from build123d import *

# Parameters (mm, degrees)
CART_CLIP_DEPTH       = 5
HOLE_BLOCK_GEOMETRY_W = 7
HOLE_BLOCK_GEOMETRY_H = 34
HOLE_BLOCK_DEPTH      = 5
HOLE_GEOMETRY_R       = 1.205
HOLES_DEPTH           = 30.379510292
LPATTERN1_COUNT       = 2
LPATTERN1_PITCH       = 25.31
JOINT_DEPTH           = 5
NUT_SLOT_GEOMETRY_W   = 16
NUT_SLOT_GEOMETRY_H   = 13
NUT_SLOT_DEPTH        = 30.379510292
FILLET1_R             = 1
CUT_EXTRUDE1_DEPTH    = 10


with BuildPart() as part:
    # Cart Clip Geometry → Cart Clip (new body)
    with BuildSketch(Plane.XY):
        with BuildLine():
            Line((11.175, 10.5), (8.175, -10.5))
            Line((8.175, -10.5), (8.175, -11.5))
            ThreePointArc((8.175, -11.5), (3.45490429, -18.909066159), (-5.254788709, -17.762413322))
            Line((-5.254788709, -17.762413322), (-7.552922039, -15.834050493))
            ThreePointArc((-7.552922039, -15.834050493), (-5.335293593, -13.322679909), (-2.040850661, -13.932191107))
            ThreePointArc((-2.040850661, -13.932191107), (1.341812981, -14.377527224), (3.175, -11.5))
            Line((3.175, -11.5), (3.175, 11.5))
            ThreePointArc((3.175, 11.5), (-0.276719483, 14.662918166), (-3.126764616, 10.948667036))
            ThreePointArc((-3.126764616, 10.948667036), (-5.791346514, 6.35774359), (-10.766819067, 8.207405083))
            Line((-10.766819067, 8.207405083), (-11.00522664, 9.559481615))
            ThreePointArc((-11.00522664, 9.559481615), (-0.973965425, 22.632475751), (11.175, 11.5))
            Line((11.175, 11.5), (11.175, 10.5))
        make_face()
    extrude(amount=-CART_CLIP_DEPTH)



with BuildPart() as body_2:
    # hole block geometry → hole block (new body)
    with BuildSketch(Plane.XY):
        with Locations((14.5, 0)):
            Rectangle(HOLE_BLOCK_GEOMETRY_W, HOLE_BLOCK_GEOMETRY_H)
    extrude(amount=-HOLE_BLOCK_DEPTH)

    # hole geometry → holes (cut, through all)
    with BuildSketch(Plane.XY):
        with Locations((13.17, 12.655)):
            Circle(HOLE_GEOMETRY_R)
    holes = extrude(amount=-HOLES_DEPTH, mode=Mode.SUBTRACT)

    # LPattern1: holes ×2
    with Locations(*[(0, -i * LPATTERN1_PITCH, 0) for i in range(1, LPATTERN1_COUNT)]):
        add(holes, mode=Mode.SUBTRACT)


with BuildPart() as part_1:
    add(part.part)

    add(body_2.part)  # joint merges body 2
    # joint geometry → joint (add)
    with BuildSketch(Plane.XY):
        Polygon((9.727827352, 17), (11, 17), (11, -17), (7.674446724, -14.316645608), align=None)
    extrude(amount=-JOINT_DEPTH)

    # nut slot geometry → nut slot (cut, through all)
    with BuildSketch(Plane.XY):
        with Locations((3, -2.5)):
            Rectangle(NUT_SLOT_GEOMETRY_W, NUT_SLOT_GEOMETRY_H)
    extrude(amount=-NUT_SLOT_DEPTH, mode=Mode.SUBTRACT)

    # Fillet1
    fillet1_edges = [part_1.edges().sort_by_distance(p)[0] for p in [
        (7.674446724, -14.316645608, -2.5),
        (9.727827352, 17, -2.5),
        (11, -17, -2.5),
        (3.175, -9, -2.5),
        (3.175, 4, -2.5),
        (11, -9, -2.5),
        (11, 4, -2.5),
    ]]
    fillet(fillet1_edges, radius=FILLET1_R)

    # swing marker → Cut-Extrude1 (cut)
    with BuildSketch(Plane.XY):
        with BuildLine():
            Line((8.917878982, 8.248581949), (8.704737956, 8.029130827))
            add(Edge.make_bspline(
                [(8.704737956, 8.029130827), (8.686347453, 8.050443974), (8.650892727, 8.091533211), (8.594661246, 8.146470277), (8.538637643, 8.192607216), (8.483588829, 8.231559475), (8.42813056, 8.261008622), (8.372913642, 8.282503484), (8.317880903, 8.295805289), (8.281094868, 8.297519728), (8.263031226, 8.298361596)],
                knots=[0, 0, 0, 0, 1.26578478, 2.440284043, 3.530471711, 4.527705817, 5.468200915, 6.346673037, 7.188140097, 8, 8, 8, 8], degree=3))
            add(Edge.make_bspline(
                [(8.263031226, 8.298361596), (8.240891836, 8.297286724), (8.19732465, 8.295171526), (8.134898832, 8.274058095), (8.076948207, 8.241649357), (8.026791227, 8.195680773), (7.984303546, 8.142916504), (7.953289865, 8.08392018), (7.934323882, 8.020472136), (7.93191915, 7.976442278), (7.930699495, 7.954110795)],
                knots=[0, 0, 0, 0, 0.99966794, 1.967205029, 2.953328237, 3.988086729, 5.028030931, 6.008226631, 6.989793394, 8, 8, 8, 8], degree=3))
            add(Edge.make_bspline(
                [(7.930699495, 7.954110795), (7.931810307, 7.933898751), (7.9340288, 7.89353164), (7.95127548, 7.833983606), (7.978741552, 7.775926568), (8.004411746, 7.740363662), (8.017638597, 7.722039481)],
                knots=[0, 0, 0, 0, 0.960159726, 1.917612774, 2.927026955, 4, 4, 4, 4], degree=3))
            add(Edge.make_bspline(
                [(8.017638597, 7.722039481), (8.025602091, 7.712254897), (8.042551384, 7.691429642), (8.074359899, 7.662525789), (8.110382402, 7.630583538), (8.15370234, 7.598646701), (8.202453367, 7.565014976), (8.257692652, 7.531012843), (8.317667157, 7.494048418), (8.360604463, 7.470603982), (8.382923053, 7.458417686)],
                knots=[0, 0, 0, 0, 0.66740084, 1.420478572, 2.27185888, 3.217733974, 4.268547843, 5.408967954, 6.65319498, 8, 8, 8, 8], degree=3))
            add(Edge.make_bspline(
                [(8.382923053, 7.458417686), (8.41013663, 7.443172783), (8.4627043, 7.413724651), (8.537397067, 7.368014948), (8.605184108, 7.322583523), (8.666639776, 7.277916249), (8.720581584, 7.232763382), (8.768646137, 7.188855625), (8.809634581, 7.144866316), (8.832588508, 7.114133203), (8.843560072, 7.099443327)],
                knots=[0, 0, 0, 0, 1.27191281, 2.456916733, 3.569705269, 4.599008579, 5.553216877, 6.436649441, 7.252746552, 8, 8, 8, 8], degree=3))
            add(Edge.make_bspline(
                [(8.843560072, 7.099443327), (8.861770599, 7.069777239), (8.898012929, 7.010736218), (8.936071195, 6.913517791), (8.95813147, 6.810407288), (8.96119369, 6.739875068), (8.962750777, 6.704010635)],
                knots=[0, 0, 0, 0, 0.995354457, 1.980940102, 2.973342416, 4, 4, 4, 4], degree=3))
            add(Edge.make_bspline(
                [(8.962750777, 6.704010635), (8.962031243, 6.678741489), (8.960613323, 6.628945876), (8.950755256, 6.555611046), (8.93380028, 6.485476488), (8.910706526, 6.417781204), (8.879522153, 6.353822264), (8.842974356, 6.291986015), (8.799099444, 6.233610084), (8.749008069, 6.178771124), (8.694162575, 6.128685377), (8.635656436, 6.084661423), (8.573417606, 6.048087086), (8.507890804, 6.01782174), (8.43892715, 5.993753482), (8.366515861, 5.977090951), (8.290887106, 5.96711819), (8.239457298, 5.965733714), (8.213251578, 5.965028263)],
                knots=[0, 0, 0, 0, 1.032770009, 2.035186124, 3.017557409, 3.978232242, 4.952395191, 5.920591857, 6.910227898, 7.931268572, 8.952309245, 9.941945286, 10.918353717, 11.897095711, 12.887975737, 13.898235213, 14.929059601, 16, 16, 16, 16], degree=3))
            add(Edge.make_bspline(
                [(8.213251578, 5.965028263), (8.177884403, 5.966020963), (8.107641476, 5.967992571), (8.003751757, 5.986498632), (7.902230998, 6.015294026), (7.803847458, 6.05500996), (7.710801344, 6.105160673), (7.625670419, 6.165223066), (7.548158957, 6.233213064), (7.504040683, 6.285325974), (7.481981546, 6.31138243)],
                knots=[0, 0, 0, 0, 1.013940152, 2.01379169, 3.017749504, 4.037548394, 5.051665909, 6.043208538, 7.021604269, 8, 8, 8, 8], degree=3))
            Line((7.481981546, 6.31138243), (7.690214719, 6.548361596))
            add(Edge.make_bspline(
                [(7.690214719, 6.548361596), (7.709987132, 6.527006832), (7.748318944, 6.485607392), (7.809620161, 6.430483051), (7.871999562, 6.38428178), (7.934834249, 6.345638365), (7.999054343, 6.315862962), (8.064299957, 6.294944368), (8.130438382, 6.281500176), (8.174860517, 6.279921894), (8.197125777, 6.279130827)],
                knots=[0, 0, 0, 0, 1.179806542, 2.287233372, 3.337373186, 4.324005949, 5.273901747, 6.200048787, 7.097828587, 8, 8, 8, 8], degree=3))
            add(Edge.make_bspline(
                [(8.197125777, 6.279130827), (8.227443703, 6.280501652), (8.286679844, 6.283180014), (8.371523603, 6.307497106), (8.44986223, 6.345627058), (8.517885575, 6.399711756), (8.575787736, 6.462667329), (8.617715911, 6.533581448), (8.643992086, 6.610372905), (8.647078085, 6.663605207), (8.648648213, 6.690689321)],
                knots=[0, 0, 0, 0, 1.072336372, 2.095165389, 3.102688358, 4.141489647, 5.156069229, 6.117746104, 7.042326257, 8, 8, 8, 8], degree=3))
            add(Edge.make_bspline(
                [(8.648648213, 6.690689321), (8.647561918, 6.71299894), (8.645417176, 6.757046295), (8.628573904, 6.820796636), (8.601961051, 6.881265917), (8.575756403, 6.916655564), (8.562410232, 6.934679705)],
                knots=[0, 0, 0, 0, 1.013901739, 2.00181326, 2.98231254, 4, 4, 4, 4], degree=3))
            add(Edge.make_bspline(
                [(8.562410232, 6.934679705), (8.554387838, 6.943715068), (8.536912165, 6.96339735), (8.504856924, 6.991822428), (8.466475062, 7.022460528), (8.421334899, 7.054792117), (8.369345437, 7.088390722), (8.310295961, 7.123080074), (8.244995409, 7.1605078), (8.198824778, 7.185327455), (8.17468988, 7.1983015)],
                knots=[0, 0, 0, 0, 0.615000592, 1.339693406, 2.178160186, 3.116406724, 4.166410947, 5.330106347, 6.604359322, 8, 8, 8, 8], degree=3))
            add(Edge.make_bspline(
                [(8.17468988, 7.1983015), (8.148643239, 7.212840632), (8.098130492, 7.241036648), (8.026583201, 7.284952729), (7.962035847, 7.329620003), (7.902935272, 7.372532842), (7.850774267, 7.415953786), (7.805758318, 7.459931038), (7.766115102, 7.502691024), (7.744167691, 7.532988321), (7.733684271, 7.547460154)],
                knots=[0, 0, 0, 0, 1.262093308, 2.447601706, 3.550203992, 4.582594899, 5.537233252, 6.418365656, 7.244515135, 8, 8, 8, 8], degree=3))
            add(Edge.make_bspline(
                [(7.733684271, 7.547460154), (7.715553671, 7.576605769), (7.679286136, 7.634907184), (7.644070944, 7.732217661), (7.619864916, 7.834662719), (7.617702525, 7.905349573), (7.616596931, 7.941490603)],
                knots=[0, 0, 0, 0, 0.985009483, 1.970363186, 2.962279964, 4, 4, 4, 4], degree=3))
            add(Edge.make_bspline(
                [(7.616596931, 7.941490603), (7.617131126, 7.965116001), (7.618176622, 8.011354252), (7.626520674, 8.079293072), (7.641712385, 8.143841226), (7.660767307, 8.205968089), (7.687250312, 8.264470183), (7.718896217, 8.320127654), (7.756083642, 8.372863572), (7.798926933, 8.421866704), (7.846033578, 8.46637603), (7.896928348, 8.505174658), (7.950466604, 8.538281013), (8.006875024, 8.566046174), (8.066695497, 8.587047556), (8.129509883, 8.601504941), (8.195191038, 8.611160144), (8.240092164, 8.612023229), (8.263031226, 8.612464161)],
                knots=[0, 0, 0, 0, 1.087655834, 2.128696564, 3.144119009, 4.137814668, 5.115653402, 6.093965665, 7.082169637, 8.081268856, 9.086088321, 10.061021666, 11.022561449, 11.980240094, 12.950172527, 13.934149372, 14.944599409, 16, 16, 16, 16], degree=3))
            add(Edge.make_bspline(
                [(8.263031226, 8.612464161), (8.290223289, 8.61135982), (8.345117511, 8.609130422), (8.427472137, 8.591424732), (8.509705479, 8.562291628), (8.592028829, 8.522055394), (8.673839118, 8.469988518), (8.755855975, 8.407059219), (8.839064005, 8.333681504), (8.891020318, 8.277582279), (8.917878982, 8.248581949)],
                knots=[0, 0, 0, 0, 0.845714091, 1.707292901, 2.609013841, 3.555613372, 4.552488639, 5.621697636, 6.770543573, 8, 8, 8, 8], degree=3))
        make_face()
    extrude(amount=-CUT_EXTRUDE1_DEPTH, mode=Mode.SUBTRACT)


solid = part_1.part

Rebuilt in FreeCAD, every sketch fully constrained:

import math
import FreeCAD as App
import Part
import Sketcher

V = App.Vector
Q = App.Units.Quantity


def edges_at(feature, points):
    """Names of the edges that pass closest to the given points."""
    edges = feature.Shape.Edges
    near = lambda p: min(range(len(edges)), key=lambda i: edges[i].distToShape(Part.Vertex(*p))[0])
    return sorted({f"Edge{near(p) + 1}" for p in points})


def add_polygon(sketch, points):
    """Adds a closed chain of lines whose ends are joined by coincident constraints."""
    first, n = sketch.GeometryCount, len(points)
    for a, b in zip(points, points[1:] + points[:1]):
        sketch.addGeometry(Part.LineSegment(App.Vector(*a, 0), App.Vector(*b, 0)), False)
    for i in range(n):
        sketch.addConstraint(Sketcher.Constraint("Coincident", first + i, 2, first + (i + 1) % n, 1))

doc = App.newDocument("Part")
body = doc.addObject("PartDesign::Body", "Body")

# Sketch on XY plane
sketch1 = body.newObject("Sketcher::SketchObject", "Sketch")
sketch1.AttachmentSupport = (doc.getObject("XY_Plane"), [""])
sketch1.MapMode = "FlatFace"
sketch1.addGeometry(Part.LineSegment(V(8.2, -10.5, 0), V(11.2, 10.5, 0)), False)
sketch1.addGeometry(Part.LineSegment(V(11.2, 10.5, 0), V(11.2, 11.5, 0)), False)
sketch1.addGeometry(Part.ArcOfCircle(Part.Circle(V(0, 11.5, 0), V(0, 0, 1), 11.2), math.radians(0), math.radians(190)), False)
sketch1.addGeometry(Part.LineSegment(V(-11, 9.6, 0), V(-10.8, 8.2, 0)), False)
sketch1.addGeometry(Part.ArcOfCircle(Part.Circle(V(-7.2, 10.2, 0), V(0, 0, 1), 4.1), math.radians(-151), math.radians(10)), False)
sketch1.addGeometry(Part.ArcOfCircle(Part.Circle(V(0, 11.5, 0), V(0, 0, 1), 3.2), math.radians(0), math.radians(190)), False)
sketch1.addGeometry(Part.LineSegment(V(3.2, 11.5, 0), V(3.2, -11.5, 0)), False)
sketch1.addGeometry(Part.ArcOfCircle(Part.Circle(V(0, -11.5, 0), V(0, 0, 1), 3.2), math.radians(-130), math.radians(0)), False)
sketch1.addGeometry(Part.ArcOfCircle(Part.Circle(V(-4.2, -16.5, 0), V(0, 0, 1), 3.4), math.radians(50), math.radians(168)), False)
sketch1.addGeometry(Part.LineSegment(V(-7.6, -15.8, 0), V(-5.3, -17.8, 0)), False)
sketch1.addGeometry(Part.ArcOfCircle(Part.Circle(V(0, -11.5, 0), V(0, 0, 1), 8.2), math.radians(-130), math.radians(0)), False)
sketch1.addGeometry(Part.LineSegment(V(8.2, -11.5, 0), V(8.2, -10.5, 0)), False)
sketch1.addConstraint(Sketcher.Constraint("Coincident", 0, 2, 1, 1))
sketch1.addConstraint(Sketcher.Constraint("Tangent", 1, 2, 2, 1))
sketch1.addConstraint(Sketcher.Constraint("Tangent", 2, 2, 3, 1))
sketch1.addConstraint(Sketcher.Constraint("Coincident", 3, 2, 4, 1))
sketch1.addConstraint(Sketcher.Constraint("Tangent", 4, 2, 5, 2))
sketch1.addConstraint(Sketcher.Constraint("Tangent", 5, 1, 6, 1))
sketch1.addConstraint(Sketcher.Constraint("Tangent", 6, 2, 7, 2))
sketch1.addConstraint(Sketcher.Constraint("Tangent", 7, 1, 8, 1))
sketch1.addConstraint(Sketcher.Constraint("Coincident", 8, 2, 9, 1))
sketch1.addConstraint(Sketcher.Constraint("Tangent", 9, 2, 10, 1))
sketch1.addConstraint(Sketcher.Constraint("Tangent", 10, 2, 11, 1))
sketch1.addConstraint(Sketcher.Constraint("Coincident", 11, 2, 0, 1))
sketch1.addConstraint(Sketcher.Constraint("Vertical", 1))
sketch1.addConstraint(Sketcher.Constraint("Vertical", 6))
sketch1.addConstraint(Sketcher.Constraint("Vertical", 11))
sketch1.addConstraint(Sketcher.Constraint("Coincident", 5, 3, 2, 3))
sketch1.addConstraint(Sketcher.Constraint("Coincident", 10, 3, 7, 3))
sketch1.addConstraint(Sketcher.Constraint("Equal", 5, 7))
sketch1.addConstraint(Sketcher.Constraint("Symmetric", 2, 3, 7, 3, -1, 1))
sketch1.addConstraint(Sketcher.Constraint("Equal", 1, 11))
sketch1.addConstraint(Sketcher.Constraint("Radius", 8, 3.4))
sketch1.addConstraint(Sketcher.Constraint("DistanceY", 1, 1, 1, 2, 1.0))
sketch1.addConstraint(Sketcher.Constraint("DistanceY", 6, 2, 6, 1, 23.0))
sketch1.addConstraint(Sketcher.Constraint("Angle", 3, Q("-80 deg")))
sketch1.addConstraint(Sketcher.Constraint("Angle", 9, Q("-40 deg")))
sketch1.addConstraint(Sketcher.Constraint("Distance", 9, 3.0))
sketch1.addConstraint(Sketcher.Constraint("Radius", 2, 11.175))
sketch1.addConstraint(Sketcher.Constraint("Radius", 5, 3.175))
sketch1.addConstraint(Sketcher.Constraint("Radius", 10, 8.175))
sketch1.addConstraint(Sketcher.Constraint("Radius", 4, 4.117809))
sketch1.addConstraint(Sketcher.Constraint("DistanceX", 3, 2, -1, 1, 10.766819))
pad1 = body.newObject("PartDesign::Pad", "Pad")
pad1.Profile = sketch1
pad1.Length = 5
pad1.Reversed = True
body2 = doc.addObject("PartDesign::Body", "Body001")

# Sketch on XY plane
sketch2 = body2.newObject("Sketcher::SketchObject", "Sketch001")
sketch2.AttachmentSupport = (doc.getObject("XY_Plane001"), [""])
sketch2.MapMode = "FlatFace"
add_polygon(sketch2, [(11, 17), (11, -17), (18, -17), (18, 17)])  # lines 0-3
sketch2.addConstraint(Sketcher.Constraint("Vertical", 0))
sketch2.addConstraint(Sketcher.Constraint("Horizontal", 1))
sketch2.addConstraint(Sketcher.Constraint("Vertical", 2))
sketch2.addConstraint(Sketcher.Constraint("Horizontal", 3))
sketch2.addConstraint(Sketcher.Constraint("DistanceX", 1, 1, 1, 2, 7.0))
sketch2.addConstraint(Sketcher.Constraint("DistanceY", 0, 2, 0, 1, 34.0))
sketch2.addConstraint(Sketcher.Constraint("DistanceX", -1, 1, 0, 2, 11.0))
sketch2.addConstraint(Sketcher.Constraint("DistanceY", 0, 2, -1, 1, 17.0))
pad2 = body2.newObject("PartDesign::Pad", "Pad001")
pad2.Profile = sketch2
pad2.Length = 5
pad2.Reversed = True

# Sketch on XY plane
sketch3 = body2.newObject("Sketcher::SketchObject", "Sketch002")
sketch3.AttachmentSupport = (doc.getObject("XY_Plane001"), [""])
sketch3.MapMode = "FlatFace"
sketch3.addGeometry(Part.Circle(V(13.2, 12.7, 0), V(0, 0, 1), 1.2), False)
sketch3.addConstraint(Sketcher.Constraint("Diameter", 0, 2.41))
sketch3.addConstraint(Sketcher.Constraint("DistanceX", -1, 1, 0, 3, 13.17))
sketch3.addConstraint(Sketcher.Constraint("DistanceY", -1, 1, 0, 3, 12.655))
pocket1 = body2.newObject("PartDesign::Pocket", "Pocket")
pocket1.Profile = sketch3
pocket1.Type = "ThroughAll"
doc.recompute()

linearpattern = body2.newObject("PartDesign::LinearPattern", "LinearPattern")
linearpattern.Originals = [pocket1]
linearpattern.Direction = (doc.getObject("Y_Axis001"), [""])
linearpattern.Mode = "offset"
linearpattern.Offset = 25.31
linearpattern.Occurrences = 2
linearpattern.Reversed = True
body2.Tip = linearpattern
doc.recompute()

boolean = body.newObject("PartDesign::Boolean", "Boolean")
boolean.Type = "Fuse"
boolean.addObjects([body2])

# Sketch on XY plane
sketch4 = body.newObject("Sketcher::SketchObject", "Sketch003")
sketch4.AttachmentSupport = (doc.getObject("XY_Plane"), [""])
sketch4.MapMode = "FlatFace"
add_polygon(sketch4, [(11, 17), (9.7, 17), (7.7, -14.3), (11, -17)])  # lines 0-3
sketch4.addConstraint(Sketcher.Constraint("Horizontal", 0))
sketch4.addConstraint(Sketcher.Constraint("Vertical", 3))
sketch4.addConstraint(Sketcher.Constraint("DistanceY", 3, 1, 3, 2, 34.0))
sketch4.addConstraint(Sketcher.Constraint("DistanceY", -1, 1, 0, 2, 17.0))
sketch4.addConstraint(Sketcher.Constraint("DistanceX", -1, 1, 2, 2, 11.0))
sketch4.addConstraint(Sketcher.Constraint("Distance", 1, 31.383892))
sketch4.addConstraint(Sketcher.Constraint("DistanceX", 0, 2, 0, 1, 1.272173))
sketch4.addConstraint(Sketcher.Constraint("DistanceX", 1, 2, 0, 2, 2.053381))
pad3 = body.newObject("PartDesign::Pad", "Pad002")
pad3.Profile = sketch4
pad3.Length = 5
pad3.Reversed = True

# Sketch on XY plane
sketch5 = body.newObject("Sketcher::SketchObject", "Sketch004")
sketch5.AttachmentSupport = (doc.getObject("XY_Plane"), [""])
sketch5.MapMode = "FlatFace"
add_polygon(sketch5, [(-5, 4), (-5, -9), (11, -9), (11, 4)])  # lines 0-3
sketch5.addConstraint(Sketcher.Constraint("Vertical", 0))
sketch5.addConstraint(Sketcher.Constraint("Horizontal", 1))
sketch5.addConstraint(Sketcher.Constraint("Vertical", 2))
sketch5.addConstraint(Sketcher.Constraint("Horizontal", 3))
sketch5.addConstraint(Sketcher.Constraint("DistanceX", 1, 1, 1, 2, 16.0))
sketch5.addConstraint(Sketcher.Constraint("DistanceY", 0, 2, 0, 1, 13.0))
sketch5.addConstraint(Sketcher.Constraint("DistanceX", 0, 2, -1, 1, 5.0))
sketch5.addConstraint(Sketcher.Constraint("DistanceY", 0, 2, -1, 1, 9.0))
pocket2 = body.newObject("PartDesign::Pocket", "Pocket001")
pocket2.Profile = sketch5
pocket2.Type = "ThroughAll"
doc.recompute()

fillet = body.newObject("PartDesign::Fillet", "Fillet")
fillet.Base = (pocket2, edges_at(pocket2, [
    (7.674, -14.317, -2.5),
    (9.728, 17, -2.5),
    (11, -17, -2.5),
    (3.175, -9, -2.5),
    (3.175, 4, -2.5),
    (11, -9, -2.5),
    (11, 4, -2.5),
]))
fillet.Radius = 1

# Sketch on XY plane
sketch6 = body.newObject("Sketcher::SketchObject", "Sketch005")
sketch6.AttachmentSupport = (doc.getObject("XY_Plane"), [""])
sketch6.MapMode = "FlatFace"
sketch6.addGeometry(Part.LineSegment(V(8.704738, 8.029131, 0), V(8.917879, 8.248582, 0)), False)
sketch6.addGeometry(Part.BSplineCurve([V(8.263031, 8.612464, 0), V(8.290223, 8.61136, 0), V(8.345118, 8.60913, 0), V(8.427472, 8.591425, 0), V(8.509705, 8.562292, 0), V(8.592029, 8.522055, 0), V(8.673839, 8.469989, 0), V(8.755856, 8.407059, 0), V(8.839064, 8.333682, 0), V(8.89102, 8.277582, 0), V(8.917879, 8.248582, 0)], [4, 1, 1, 1, 1, 1, 1, 1, 4], [0, 0.845714091, 1.707292901, 2.609013841, 3.555613372, 4.552488639, 5.621697636, 6.770543573, 8], False, 3, [1, 1, 1, 1, 1, 1, 1, 1, 1, 1, 1], False), False)
sketch6.addGeometry(Part.BSplineCurve([V(7.616597, 7.941491, 0), V(7.617131, 7.965116, 0), V(7.618177, 8.011354, 0), V(7.626521, 8.079293, 0), V(7.641712, 8.143841, 0), V(7.660767, 8.205968, 0), V(7.68725, 8.26447, 0), V(7.718896, 8.320128, 0), V(7.756084, 8.372864, 0), V(7.798927, 8.421867, 0), V(7.846034, 8.466376, 0), V(7.896928, 8.505175, 0), V(7.950467, 8.538281, 0), V(8.006875, 8.566046, 0), V(8.066695, 8.587048, 0), V(8.12951, 8.601505, 0), V(8.195191, 8.61116, 0), V(8.240092, 8.612023, 0), V(8.263031, 8.612464, 0)], [4, 1, 1, 1, 1, 1, 1, 1, 1, 1, 1, 1, 1, 1, 1, 1, 4], [0, 1.087655834, 2.128696564, 3.144119009, 4.137814668, 5.115653402, 6.093965665, 7.082169637, 8.081268856, 9.086088321, 10.061021666, 11.022561449, 11.980240094, 12.950172527, 13.934149372, 14.944599409, 16], False, 3, [1, 1, 1, 1, 1, 1, 1, 1, 1, 1, 1, 1, 1, 1, 1, 1, 1, 1, 1], False), False)
sketch6.addGeometry(Part.BSplineCurve([V(7.733684, 7.54746, 0), V(7.715554, 7.576606, 0), V(7.679286, 7.634907, 0), V(7.644071, 7.732218, 0), V(7.619865, 7.834663, 0), V(7.617703, 7.90535, 0), V(7.616597, 7.941491, 0)], [4, 1, 1, 1, 4], [0, 0.985009483, 1.970363186, 2.962279964, 4], False, 3, [1, 1, 1, 1, 1, 1, 1], False), False)
sketch6.addGeometry(Part.BSplineCurve([V(8.17469, 7.198302, 0), V(8.148643, 7.212841, 0), V(8.09813, 7.241037, 0), V(8.026583, 7.284953, 0), V(7.962036, 7.32962, 0), V(7.902935, 7.372533, 0), V(7.850774, 7.415954, 0), V(7.805758, 7.459931, 0), V(7.766115, 7.502691, 0), V(7.744168, 7.532988, 0), V(7.733684, 7.54746, 0)], [4, 1, 1, 1, 1, 1, 1, 1, 4], [0, 1.262093308, 2.447601706, 3.550203992, 4.582594899, 5.537233252, 6.418365656, 7.244515135, 8], False, 3, [1, 1, 1, 1, 1, 1, 1, 1, 1, 1, 1], False), False)
sketch6.addGeometry(Part.BSplineCurve([V(8.56241, 6.93468, 0), V(8.554388, 6.943715, 0), V(8.536912, 6.963397, 0), V(8.504857, 6.991822, 0), V(8.466475, 7.022461, 0), V(8.421335, 7.054792, 0), V(8.369345, 7.088391, 0), V(8.310296, 7.12308, 0), V(8.244995, 7.160508, 0), V(8.198825, 7.185327, 0), V(8.17469, 7.198302, 0)], [4, 1, 1, 1, 1, 1, 1, 1, 4], [0, 0.615000592, 1.339693406, 2.178160186, 3.116406724, 4.166410947, 5.330106347, 6.604359322, 8], False, 3, [1, 1, 1, 1, 1, 1, 1, 1, 1, 1, 1], False), False)
sketch6.addGeometry(Part.BSplineCurve([V(8.648648, 6.690689, 0), V(8.647562, 6.712999, 0), V(8.645417, 6.757046, 0), V(8.628574, 6.820797, 0), V(8.601961, 6.881266, 0), V(8.575756, 6.916656, 0), V(8.56241, 6.93468, 0)], [4, 1, 1, 1, 4], [0, 1.013901739, 2.00181326, 2.98231254, 4], False, 3, [1, 1, 1, 1, 1, 1, 1], False), False)
sketch6.addGeometry(Part.BSplineCurve([V(8.197126, 6.279131, 0), V(8.227444, 6.280502, 0), V(8.28668, 6.28318, 0), V(8.371524, 6.307497, 0), V(8.449862, 6.345627, 0), V(8.517886, 6.399712, 0), V(8.575788, 6.462667, 0), V(8.617716, 6.533581, 0), V(8.643992, 6.610373, 0), V(8.647078, 6.663605, 0), V(8.648648, 6.690689, 0)], [4, 1, 1, 1, 1, 1, 1, 1, 4], [0, 1.072336372, 2.095165389, 3.102688358, 4.141489647, 5.156069229, 6.117746104, 7.042326257, 8], False, 3, [1, 1, 1, 1, 1, 1, 1, 1, 1, 1, 1], False), False)
sketch6.addGeometry(Part.BSplineCurve([V(7.690215, 6.548362, 0), V(7.709987, 6.527007, 0), V(7.748319, 6.485607, 0), V(7.80962, 6.430483, 0), V(7.872, 6.384282, 0), V(7.934834, 6.345638, 0), V(7.999054, 6.315863, 0), V(8.0643, 6.294944, 0), V(8.130438, 6.2815, 0), V(8.174861, 6.279922, 0), V(8.197126, 6.279131, 0)], [4, 1, 1, 1, 1, 1, 1, 1, 4], [0, 1.179806542, 2.287233372, 3.337373186, 4.324005949, 5.273901747, 6.200048787, 7.097828587, 8], False, 3, [1, 1, 1, 1, 1, 1, 1, 1, 1, 1, 1], False), False)
sketch6.addGeometry(Part.LineSegment(V(7.690215, 6.548362, 0), V(7.481982, 6.311382, 0)), False)
sketch6.addGeometry(Part.BSplineCurve([V(8.213252, 5.965028, 0), V(8.177884, 5.966021, 0), V(8.107641, 5.967993, 0), V(8.003752, 5.986499, 0), V(7.902231, 6.015294, 0), V(7.803847, 6.05501, 0), V(7.710801, 6.105161, 0), V(7.62567, 6.165223, 0), V(7.548159, 6.233213, 0), V(7.504041, 6.285326, 0), V(7.481982, 6.311382, 0)], [4, 1, 1, 1, 1, 1, 1, 1, 4], [0, 1.013940152, 2.01379169, 3.017749504, 4.037548394, 5.051665909, 6.043208538, 7.021604269, 8], False, 3, [1, 1, 1, 1, 1, 1, 1, 1, 1, 1, 1], False), False)
sketch6.addGeometry(Part.BSplineCurve([V(8.962751, 6.704011, 0), V(8.962031, 6.678741, 0), V(8.960613, 6.628946, 0), V(8.950755, 6.555611, 0), V(8.9338, 6.485476, 0), V(8.910707, 6.417781, 0), V(8.879522, 6.353822, 0), V(8.842974, 6.291986, 0), V(8.799099, 6.23361, 0), V(8.749008, 6.178771, 0), V(8.694163, 6.128685, 0), V(8.635656, 6.084661, 0), V(8.573418, 6.048087, 0), V(8.507891, 6.017822, 0), V(8.438927, 5.993753, 0), V(8.366516, 5.977091, 0), V(8.290887, 5.967118, 0), V(8.239457, 5.965734, 0), V(8.213252, 5.965028, 0)], [4, 1, 1, 1, 1, 1, 1, 1, 1, 1, 1, 1, 1, 1, 1, 1, 4], [0, 1.032770009, 2.035186124, 3.017557409, 3.978232242, 4.952395191, 5.920591857, 6.910227898, 7.931268572, 8.952309245, 9.941945286, 10.918353717, 11.897095711, 12.887975737, 13.898235213, 14.929059601, 16], False, 3, [1, 1, 1, 1, 1, 1, 1, 1, 1, 1, 1, 1, 1, 1, 1, 1, 1, 1, 1], False), False)
sketch6.addGeometry(Part.BSplineCurve([V(8.84356, 7.099443, 0), V(8.861771, 7.069777, 0), V(8.898013, 7.010736, 0), V(8.936071, 6.913518, 0), V(8.958131, 6.810407, 0), V(8.961194, 6.739875, 0), V(8.962751, 6.704011, 0)], [4, 1, 1, 1, 4], [0, 0.995354457, 1.980940102, 2.973342416, 4], False, 3, [1, 1, 1, 1, 1, 1, 1], False), False)
sketch6.addGeometry(Part.BSplineCurve([V(8.382923, 7.458418, 0), V(8.410137, 7.443173, 0), V(8.462704, 7.413725, 0), V(8.537397, 7.368015, 0), V(8.605184, 7.322584, 0), V(8.66664, 7.277916, 0), V(8.720582, 7.232763, 0), V(8.768646, 7.188856, 0), V(8.809635, 7.144866, 0), V(8.832589, 7.114133, 0), V(8.84356, 7.099443, 0)], [4, 1, 1, 1, 1, 1, 1, 1, 4], [0, 1.27191281, 2.456916733, 3.569705269, 4.599008579, 5.553216877, 6.436649441, 7.252746552, 8], False, 3, [1, 1, 1, 1, 1, 1, 1, 1, 1, 1, 1], False), False)
sketch6.addGeometry(Part.BSplineCurve([V(8.017639, 7.722039, 0), V(8.025602, 7.712255, 0), V(8.042551, 7.69143, 0), V(8.07436, 7.662526, 0), V(8.110382, 7.630584, 0), V(8.153702, 7.598647, 0), V(8.202453, 7.565015, 0), V(8.257693, 7.531013, 0), V(8.317667, 7.494048, 0), V(8.360604, 7.470604, 0), V(8.382923, 7.458418, 0)], [4, 1, 1, 1, 1, 1, 1, 1, 4], [0, 0.66740084, 1.420478572, 2.27185888, 3.217733974, 4.268547843, 5.408967954, 6.65319498, 8], False, 3, [1, 1, 1, 1, 1, 1, 1, 1, 1, 1, 1], False), False)
sketch6.addGeometry(Part.BSplineCurve([V(7.930699, 7.954111, 0), V(7.93181, 7.933899, 0), V(7.934029, 7.893532, 0), V(7.951275, 7.833984, 0), V(7.978742, 7.775927, 0), V(8.004412, 7.740364, 0), V(8.017639, 7.722039, 0)], [4, 1, 1, 1, 4], [0, 0.960159726, 1.917612774, 2.927026955, 4], False, 3, [1, 1, 1, 1, 1, 1, 1], False), False)
sketch6.addGeometry(Part.BSplineCurve([V(8.263031, 8.298362, 0), V(8.240892, 8.297287, 0), V(8.197325, 8.295172, 0), V(8.134899, 8.274058, 0), V(8.076948, 8.241649, 0), V(8.026791, 8.195681, 0), V(7.984304, 8.142917, 0), V(7.95329, 8.08392, 0), V(7.934324, 8.020472, 0), V(7.931919, 7.976442, 0), V(7.930699, 7.954111, 0)], [4, 1, 1, 1, 1, 1, 1, 1, 4], [0, 0.99966794, 1.967205029, 2.953328237, 3.988086729, 5.028030931, 6.008226631, 6.989793394, 8], False, 3, [1, 1, 1, 1, 1, 1, 1, 1, 1, 1, 1], False), False)
sketch6.addGeometry(Part.BSplineCurve([V(8.704738, 8.029131, 0), V(8.686347, 8.050444, 0), V(8.650893, 8.091533, 0), V(8.594661, 8.14647, 0), V(8.538638, 8.192607, 0), V(8.483589, 8.231559, 0), V(8.428131, 8.261009, 0), V(8.372914, 8.282503, 0), V(8.317881, 8.295805, 0), V(8.281095, 8.29752, 0), V(8.263031, 8.298362, 0)], [4, 1, 1, 1, 1, 1, 1, 1, 4], [0, 1.26578478, 2.440284043, 3.530471711, 4.527705817, 5.468200915, 6.346673037, 7.188140097, 8], False, 3, [1, 1, 1, 1, 1, 1, 1, 1, 1, 1, 1], False), False)
sketch6.addConstraint(Sketcher.Constraint("Block", 1))
sketch6.addConstraint(Sketcher.Constraint("Block", 2))
sketch6.addConstraint(Sketcher.Constraint("Block", 3))
sketch6.addConstraint(Sketcher.Constraint("Block", 4))
sketch6.addConstraint(Sketcher.Constraint("Block", 5))
sketch6.addConstraint(Sketcher.Constraint("Block", 6))
sketch6.addConstraint(Sketcher.Constraint("Block", 7))
sketch6.addConstraint(Sketcher.Constraint("Block", 8))
sketch6.addConstraint(Sketcher.Constraint("Block", 10))
sketch6.addConstraint(Sketcher.Constraint("Block", 11))
sketch6.addConstraint(Sketcher.Constraint("Block", 12))
sketch6.addConstraint(Sketcher.Constraint("Block", 13))
sketch6.addConstraint(Sketcher.Constraint("Block", 14))
sketch6.addConstraint(Sketcher.Constraint("Block", 15))
sketch6.addConstraint(Sketcher.Constraint("Block", 16))
sketch6.addConstraint(Sketcher.Constraint("Block", 17))
sketch6.addConstraint(Sketcher.Constraint("Coincident", 0, 2, 1, 2))
sketch6.addConstraint(Sketcher.Constraint("Coincident", 8, 1, 9, 1))
sketch6.addConstraint(Sketcher.Constraint("Coincident", 9, 2, 10, 2))
sketch6.addConstraint(Sketcher.Constraint("Coincident", 17, 1, 0, 1))
pocket3 = body.newObject("PartDesign::Pocket", "Pocket002")
pocket3.Profile = sketch6
pocket3.Length = 10

doc.recompute()
